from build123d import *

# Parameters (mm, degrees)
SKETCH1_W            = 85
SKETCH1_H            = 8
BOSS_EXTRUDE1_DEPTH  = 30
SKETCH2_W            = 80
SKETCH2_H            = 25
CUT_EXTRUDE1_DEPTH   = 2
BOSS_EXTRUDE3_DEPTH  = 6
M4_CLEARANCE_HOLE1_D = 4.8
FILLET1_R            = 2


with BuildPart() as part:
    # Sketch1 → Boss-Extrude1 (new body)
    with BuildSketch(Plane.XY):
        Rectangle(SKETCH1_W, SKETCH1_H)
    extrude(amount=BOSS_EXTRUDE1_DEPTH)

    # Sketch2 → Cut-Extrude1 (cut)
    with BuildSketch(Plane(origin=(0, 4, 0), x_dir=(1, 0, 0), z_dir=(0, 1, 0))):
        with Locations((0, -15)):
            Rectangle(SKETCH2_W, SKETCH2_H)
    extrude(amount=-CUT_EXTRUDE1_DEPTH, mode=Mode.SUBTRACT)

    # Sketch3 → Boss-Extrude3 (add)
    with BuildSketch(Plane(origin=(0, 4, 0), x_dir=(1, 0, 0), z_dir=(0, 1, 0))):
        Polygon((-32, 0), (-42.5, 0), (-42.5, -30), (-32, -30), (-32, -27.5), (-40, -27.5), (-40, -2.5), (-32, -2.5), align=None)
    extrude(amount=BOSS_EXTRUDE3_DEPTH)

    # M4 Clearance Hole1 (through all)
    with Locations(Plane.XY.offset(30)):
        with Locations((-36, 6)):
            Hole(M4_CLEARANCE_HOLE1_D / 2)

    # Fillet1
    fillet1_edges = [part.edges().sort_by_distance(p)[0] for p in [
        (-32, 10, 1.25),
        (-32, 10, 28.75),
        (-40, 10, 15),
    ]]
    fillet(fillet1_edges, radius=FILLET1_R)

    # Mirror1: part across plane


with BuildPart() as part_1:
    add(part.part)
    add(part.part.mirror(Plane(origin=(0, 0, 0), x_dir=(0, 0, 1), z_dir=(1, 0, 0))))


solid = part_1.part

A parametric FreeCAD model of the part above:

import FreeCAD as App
import Part
import Sketcher
from FreeCAD import Vector


def edges_at(feature, points):
    """Names of the edges that pass closest to the given points."""
    edges = feature.Shape.Edges
    near = lambda p: min(range(len(edges)), key=lambda i: edges[i].distToShape(Part.Vertex(*p))[0])
    return sorted({f"Edge{near(p) + 1}" for p in points})


def add_polygon(sketch, points):
    """Adds a closed chain of lines whose ends are joined by coincident constraints."""
    first, n = sketch.GeometryCount, len(points)
    for a, b in zip(points, points[1:] + points[:1]):
        sketch.addGeometry(Part.LineSegment(App.Vector(*a, 0), App.Vector(*b, 0)), False)
    for i in range(n):
        sketch.addConstraint(Sketcher.Constraint("Coincident", first + i, 2, first + (i + 1) % n, 1))

doc = App.newDocument("Part")
params = doc.addObject("Spreadsheet::Sheet", "Params")
for row, (alias, value) in enumerate([
    ("sketch1_width", "85 mm"),
    ("sketch1_height", "8 mm"),
    ("pad1_length", "30 mm"),
    ("sketch2_width", "80 mm"),
    ("sketch2_height", "25 mm"),
    ("pocket1_length", "2 mm"),
    ("sketch3_width", "8 mm"),
    ("sketch3_height", "30 mm"),
    ("sketch3_height2", "25 mm"),
    ("sketch3_width2", "10.5 mm"),
    ("pad2_length", "6 mm"),
    ("sketch4_diameter", "4.8 mm"),
    ("hole_diameter", "4.8 mm"),
    ("fillet_radius", "2 mm"),
], start=1):
    params.set(f"A{row}", alias)
    params.set(f"B{row}", "=" + value)
    params.setAlias(f"B{row}", alias)

body = doc.addObject("PartDesign::Body", "Body")

sketch1 = body.newObject("Sketcher::SketchObject", "Sketch")
sketch1.AttachmentSupport = (doc.getObject("XY_Plane"), [""])
sketch1.MapMode = "FlatFace"
add_polygon(sketch1, [(-42, 4), (-42, -4), (42, -4), (42, 4)])
sketch1.addConstraint(Sketcher.Constraint("Vertical", 0))
sketch1.addConstraint(Sketcher.Constraint("Horizontal", 1))
sketch1.addConstraint(Sketcher.Constraint("Vertical", 2))
sketch1.addConstraint(Sketcher.Constraint("Horizontal", 3))
sketch1.addConstraint(Sketcher.Constraint("Symmetric", 0, 2, 2, 2, -1, 1))
sketch1.addConstraint(Sketcher.Constraint("DistanceX", 1, 1, 1, 2, 85.0))
sketch1.addConstraint(Sketcher.Constraint("DistanceY", 0, 2, 0, 1, 8.0))
sketch1.setExpression("Constraints[9]", "Params.sketch1_width")
sketch1.setExpression("Constraints[10]", "Params.sketch1_height")
pad1 = body.newObject("PartDesign::Pad", "Pad")
pad1.Profile = sketch1
pad1.setExpression("Length", "Params.pad1_length")

sketch2 = body.newObject("Sketcher::SketchObject", "Sketch001")
sketch2.AttachmentSupport = (doc.getObject("XZ_Plane"), [""])
sketch2.MapMode = "FlatFace"
sketch2.AttachmentOffset = App.Placement(Vector(0, 0, -4), App.Rotation())
add_polygon(sketch2, [(-40, 2), (-40, 28), (40, 28), (40, 2)])
sketch2.addConstraint(Sketcher.Constraint("Vertical", 0))
sketch2.addConstraint(Sketcher.Constraint("Horizontal", 1))
sketch2.addConstraint(Sketcher.Constraint("Vertical", 2))
sketch2.addConstraint(Sketcher.Constraint("Horizontal", 3))
sketch2.addConstraint(Sketcher.Constraint("DistanceX", 1, 1, 1, 2, 80.0))
sketch2.addConstraint(Sketcher.Constraint("DistanceY", 0, 1, 0, 2, 25.0))
sketch2.addConstraint(Sketcher.Constraint("DistanceX", 0, 2, -1, 1, 40.0))
sketch2.addConstraint(Sketcher.Constraint("DistanceY", -1, 1, 0, 2, 27.5))
sketch2.setExpression("Constraints[8]", "Params.sketch2_width")
sketch2.setExpression("Constraints[9]", "Params.sketch2_height")
pocket1 = body.newObject("PartDesign::Pocket", "Pocket")
pocket1.Profile = sketch2
pocket1.setExpression("Length", "Params.pocket1_length")
pocket1.Reversed = True

sketch3 = body.newObject("Sketcher::SketchObject", "Sketch002")
sketch3.AttachmentSupport = (doc.getObject("XZ_Plane"), [""])
sketch3.MapMode = "FlatFace"
sketch3.AttachmentOffset = App.Placement(Vector(0, 0, -4), App.Rotation())
add_polygon(sketch3, [(-32, 0), (-42.5, 0), (-42.5, 30), (-32, 30), (-32, 27.5), (-40, 27.5), (-40, 2.5), (-32, 2.5)])
sketch3.addConstraint(Sketcher.Constraint("Horizontal", 0))
sketch3.addConstraint(Sketcher.Constraint("Vertical", 1))
sketch3.addConstraint(Sketcher.Constraint("Horizontal", 2))
sketch3.addConstraint(Sketcher.Constraint("Vertical", 3))
sketch3.addConstraint(Sketcher.Constraint("Horizontal", 4))
sketch3.addConstraint(Sketcher.Constraint("Vertical", 5))
sketch3.addConstraint(Sketcher.Constraint("Horizontal", 6))
sketch3.addConstraint(Sketcher.Constraint("Vertical", 7))
sketch3.addConstraint(Sketcher.Constraint("PointOnObject", 0, 2, -1))
sketch3.addConstraint(Sketcher.Constraint("Vertical", 3, 2, 6, 2))
sketch3.addConstraint(Sketcher.Constraint("Equal", 3, 7))
sketch3.addConstraint(Sketcher.Constraint("DistanceX", 4, 2, 4, 1, 8.0))
sketch3.addConstraint(Sketcher.Constraint("DistanceY", 1, 1, 1, 2, 30.0))
sketch3.addConstraint(Sketcher.Constraint("DistanceY", 5, 2, 5, 1, 25.0))
sketch3.addConstraint(Sketcher.Constraint("DistanceX", 0, 2, 0, 1, 10.5))
sketch3.addConstraint(Sketcher.Constraint("DistanceX", 2, 2, -1, 1, 32.0))
sketch3.setExpression("Constraints[19]", "Params.sketch3_width")
sketch3.setExpression("Constraints[20]", "Params.sketch3_height")
sketch3.setExpression("Constraints[21]", "Params.sketch3_height2")
sketch3.setExpression("Constraints[22]", "Params.sketch3_width2")
pad2 = body.newObject("PartDesign::Pad", "Pad001")
pad2.Profile = sketch3
pad2.setExpression("Length", "Params.pad2_length")
pad2.Reversed = True

sketch4 = body.newObject("Sketcher::SketchObject", "Sketch003")
sketch4.AttachmentSupport = (doc.getObject("XY_Plane"), [""])
sketch4.MapMode = "FlatFace"
sketch4.AttachmentOffset = App.Placement(Vector(0, 0, 30), App.Rotation())
sketch4.addGeometry(Part.Circle(Vector(-36, 6, 0), Vector(0, 0, 1), 2.4), False)
sketch4.addConstraint(Sketcher.Constraint("Diameter", 0, 4.8))
sketch4.addConstraint(Sketcher.Constraint("DistanceX", 0, 3, -1, 1, 36.0))
sketch4.addConstraint(Sketcher.Constraint("DistanceY", -1, 1, 0, 3, 6.0))
sketch4.setExpression("Constraints[0]", "Params.sketch4_diameter")
doc.recompute()
hole = body.newObject("PartDesign::Hole", "Hole")
hole.Profile = sketch4
hole.ThreadType = "None"
hole.setExpression("Diameter", "Params.hole_diameter")
hole.DepthType = "ThroughAll"
doc.recompute()

fillet = body.newObject("PartDesign::Fillet", "Fillet")
fillet.Base = (hole, edges_at(hole, [(-32, 10, 1.25), (-32, 10, 28.75), (-40, 10, 15)]))
fillet.setExpression("Radius", "Params.fillet_radius")
body2 = doc.addObject("PartDesign::Body", "Body001")
doc.recompute()

body2.BaseFeature = body
doc.recompute()

mirroring = doc.addObject("Part::Mirroring", "Mirroring")
mirroring.Source = body
mirroring.Base = Vector(0, 0, 0)
mirroring.Normal = Vector(1, 0, 0)
body3 = doc.addObject("PartDesign::Body", "Body002")
body3.BaseFeature = mirroring
boolean = body2.newObject("PartDesign::Boolean", "Boolean")
boolean.Type = "Fuse"
boolean.addObjects([body3])
doc.recompute()
mirroring.Visibility = False

doc.recompute()
